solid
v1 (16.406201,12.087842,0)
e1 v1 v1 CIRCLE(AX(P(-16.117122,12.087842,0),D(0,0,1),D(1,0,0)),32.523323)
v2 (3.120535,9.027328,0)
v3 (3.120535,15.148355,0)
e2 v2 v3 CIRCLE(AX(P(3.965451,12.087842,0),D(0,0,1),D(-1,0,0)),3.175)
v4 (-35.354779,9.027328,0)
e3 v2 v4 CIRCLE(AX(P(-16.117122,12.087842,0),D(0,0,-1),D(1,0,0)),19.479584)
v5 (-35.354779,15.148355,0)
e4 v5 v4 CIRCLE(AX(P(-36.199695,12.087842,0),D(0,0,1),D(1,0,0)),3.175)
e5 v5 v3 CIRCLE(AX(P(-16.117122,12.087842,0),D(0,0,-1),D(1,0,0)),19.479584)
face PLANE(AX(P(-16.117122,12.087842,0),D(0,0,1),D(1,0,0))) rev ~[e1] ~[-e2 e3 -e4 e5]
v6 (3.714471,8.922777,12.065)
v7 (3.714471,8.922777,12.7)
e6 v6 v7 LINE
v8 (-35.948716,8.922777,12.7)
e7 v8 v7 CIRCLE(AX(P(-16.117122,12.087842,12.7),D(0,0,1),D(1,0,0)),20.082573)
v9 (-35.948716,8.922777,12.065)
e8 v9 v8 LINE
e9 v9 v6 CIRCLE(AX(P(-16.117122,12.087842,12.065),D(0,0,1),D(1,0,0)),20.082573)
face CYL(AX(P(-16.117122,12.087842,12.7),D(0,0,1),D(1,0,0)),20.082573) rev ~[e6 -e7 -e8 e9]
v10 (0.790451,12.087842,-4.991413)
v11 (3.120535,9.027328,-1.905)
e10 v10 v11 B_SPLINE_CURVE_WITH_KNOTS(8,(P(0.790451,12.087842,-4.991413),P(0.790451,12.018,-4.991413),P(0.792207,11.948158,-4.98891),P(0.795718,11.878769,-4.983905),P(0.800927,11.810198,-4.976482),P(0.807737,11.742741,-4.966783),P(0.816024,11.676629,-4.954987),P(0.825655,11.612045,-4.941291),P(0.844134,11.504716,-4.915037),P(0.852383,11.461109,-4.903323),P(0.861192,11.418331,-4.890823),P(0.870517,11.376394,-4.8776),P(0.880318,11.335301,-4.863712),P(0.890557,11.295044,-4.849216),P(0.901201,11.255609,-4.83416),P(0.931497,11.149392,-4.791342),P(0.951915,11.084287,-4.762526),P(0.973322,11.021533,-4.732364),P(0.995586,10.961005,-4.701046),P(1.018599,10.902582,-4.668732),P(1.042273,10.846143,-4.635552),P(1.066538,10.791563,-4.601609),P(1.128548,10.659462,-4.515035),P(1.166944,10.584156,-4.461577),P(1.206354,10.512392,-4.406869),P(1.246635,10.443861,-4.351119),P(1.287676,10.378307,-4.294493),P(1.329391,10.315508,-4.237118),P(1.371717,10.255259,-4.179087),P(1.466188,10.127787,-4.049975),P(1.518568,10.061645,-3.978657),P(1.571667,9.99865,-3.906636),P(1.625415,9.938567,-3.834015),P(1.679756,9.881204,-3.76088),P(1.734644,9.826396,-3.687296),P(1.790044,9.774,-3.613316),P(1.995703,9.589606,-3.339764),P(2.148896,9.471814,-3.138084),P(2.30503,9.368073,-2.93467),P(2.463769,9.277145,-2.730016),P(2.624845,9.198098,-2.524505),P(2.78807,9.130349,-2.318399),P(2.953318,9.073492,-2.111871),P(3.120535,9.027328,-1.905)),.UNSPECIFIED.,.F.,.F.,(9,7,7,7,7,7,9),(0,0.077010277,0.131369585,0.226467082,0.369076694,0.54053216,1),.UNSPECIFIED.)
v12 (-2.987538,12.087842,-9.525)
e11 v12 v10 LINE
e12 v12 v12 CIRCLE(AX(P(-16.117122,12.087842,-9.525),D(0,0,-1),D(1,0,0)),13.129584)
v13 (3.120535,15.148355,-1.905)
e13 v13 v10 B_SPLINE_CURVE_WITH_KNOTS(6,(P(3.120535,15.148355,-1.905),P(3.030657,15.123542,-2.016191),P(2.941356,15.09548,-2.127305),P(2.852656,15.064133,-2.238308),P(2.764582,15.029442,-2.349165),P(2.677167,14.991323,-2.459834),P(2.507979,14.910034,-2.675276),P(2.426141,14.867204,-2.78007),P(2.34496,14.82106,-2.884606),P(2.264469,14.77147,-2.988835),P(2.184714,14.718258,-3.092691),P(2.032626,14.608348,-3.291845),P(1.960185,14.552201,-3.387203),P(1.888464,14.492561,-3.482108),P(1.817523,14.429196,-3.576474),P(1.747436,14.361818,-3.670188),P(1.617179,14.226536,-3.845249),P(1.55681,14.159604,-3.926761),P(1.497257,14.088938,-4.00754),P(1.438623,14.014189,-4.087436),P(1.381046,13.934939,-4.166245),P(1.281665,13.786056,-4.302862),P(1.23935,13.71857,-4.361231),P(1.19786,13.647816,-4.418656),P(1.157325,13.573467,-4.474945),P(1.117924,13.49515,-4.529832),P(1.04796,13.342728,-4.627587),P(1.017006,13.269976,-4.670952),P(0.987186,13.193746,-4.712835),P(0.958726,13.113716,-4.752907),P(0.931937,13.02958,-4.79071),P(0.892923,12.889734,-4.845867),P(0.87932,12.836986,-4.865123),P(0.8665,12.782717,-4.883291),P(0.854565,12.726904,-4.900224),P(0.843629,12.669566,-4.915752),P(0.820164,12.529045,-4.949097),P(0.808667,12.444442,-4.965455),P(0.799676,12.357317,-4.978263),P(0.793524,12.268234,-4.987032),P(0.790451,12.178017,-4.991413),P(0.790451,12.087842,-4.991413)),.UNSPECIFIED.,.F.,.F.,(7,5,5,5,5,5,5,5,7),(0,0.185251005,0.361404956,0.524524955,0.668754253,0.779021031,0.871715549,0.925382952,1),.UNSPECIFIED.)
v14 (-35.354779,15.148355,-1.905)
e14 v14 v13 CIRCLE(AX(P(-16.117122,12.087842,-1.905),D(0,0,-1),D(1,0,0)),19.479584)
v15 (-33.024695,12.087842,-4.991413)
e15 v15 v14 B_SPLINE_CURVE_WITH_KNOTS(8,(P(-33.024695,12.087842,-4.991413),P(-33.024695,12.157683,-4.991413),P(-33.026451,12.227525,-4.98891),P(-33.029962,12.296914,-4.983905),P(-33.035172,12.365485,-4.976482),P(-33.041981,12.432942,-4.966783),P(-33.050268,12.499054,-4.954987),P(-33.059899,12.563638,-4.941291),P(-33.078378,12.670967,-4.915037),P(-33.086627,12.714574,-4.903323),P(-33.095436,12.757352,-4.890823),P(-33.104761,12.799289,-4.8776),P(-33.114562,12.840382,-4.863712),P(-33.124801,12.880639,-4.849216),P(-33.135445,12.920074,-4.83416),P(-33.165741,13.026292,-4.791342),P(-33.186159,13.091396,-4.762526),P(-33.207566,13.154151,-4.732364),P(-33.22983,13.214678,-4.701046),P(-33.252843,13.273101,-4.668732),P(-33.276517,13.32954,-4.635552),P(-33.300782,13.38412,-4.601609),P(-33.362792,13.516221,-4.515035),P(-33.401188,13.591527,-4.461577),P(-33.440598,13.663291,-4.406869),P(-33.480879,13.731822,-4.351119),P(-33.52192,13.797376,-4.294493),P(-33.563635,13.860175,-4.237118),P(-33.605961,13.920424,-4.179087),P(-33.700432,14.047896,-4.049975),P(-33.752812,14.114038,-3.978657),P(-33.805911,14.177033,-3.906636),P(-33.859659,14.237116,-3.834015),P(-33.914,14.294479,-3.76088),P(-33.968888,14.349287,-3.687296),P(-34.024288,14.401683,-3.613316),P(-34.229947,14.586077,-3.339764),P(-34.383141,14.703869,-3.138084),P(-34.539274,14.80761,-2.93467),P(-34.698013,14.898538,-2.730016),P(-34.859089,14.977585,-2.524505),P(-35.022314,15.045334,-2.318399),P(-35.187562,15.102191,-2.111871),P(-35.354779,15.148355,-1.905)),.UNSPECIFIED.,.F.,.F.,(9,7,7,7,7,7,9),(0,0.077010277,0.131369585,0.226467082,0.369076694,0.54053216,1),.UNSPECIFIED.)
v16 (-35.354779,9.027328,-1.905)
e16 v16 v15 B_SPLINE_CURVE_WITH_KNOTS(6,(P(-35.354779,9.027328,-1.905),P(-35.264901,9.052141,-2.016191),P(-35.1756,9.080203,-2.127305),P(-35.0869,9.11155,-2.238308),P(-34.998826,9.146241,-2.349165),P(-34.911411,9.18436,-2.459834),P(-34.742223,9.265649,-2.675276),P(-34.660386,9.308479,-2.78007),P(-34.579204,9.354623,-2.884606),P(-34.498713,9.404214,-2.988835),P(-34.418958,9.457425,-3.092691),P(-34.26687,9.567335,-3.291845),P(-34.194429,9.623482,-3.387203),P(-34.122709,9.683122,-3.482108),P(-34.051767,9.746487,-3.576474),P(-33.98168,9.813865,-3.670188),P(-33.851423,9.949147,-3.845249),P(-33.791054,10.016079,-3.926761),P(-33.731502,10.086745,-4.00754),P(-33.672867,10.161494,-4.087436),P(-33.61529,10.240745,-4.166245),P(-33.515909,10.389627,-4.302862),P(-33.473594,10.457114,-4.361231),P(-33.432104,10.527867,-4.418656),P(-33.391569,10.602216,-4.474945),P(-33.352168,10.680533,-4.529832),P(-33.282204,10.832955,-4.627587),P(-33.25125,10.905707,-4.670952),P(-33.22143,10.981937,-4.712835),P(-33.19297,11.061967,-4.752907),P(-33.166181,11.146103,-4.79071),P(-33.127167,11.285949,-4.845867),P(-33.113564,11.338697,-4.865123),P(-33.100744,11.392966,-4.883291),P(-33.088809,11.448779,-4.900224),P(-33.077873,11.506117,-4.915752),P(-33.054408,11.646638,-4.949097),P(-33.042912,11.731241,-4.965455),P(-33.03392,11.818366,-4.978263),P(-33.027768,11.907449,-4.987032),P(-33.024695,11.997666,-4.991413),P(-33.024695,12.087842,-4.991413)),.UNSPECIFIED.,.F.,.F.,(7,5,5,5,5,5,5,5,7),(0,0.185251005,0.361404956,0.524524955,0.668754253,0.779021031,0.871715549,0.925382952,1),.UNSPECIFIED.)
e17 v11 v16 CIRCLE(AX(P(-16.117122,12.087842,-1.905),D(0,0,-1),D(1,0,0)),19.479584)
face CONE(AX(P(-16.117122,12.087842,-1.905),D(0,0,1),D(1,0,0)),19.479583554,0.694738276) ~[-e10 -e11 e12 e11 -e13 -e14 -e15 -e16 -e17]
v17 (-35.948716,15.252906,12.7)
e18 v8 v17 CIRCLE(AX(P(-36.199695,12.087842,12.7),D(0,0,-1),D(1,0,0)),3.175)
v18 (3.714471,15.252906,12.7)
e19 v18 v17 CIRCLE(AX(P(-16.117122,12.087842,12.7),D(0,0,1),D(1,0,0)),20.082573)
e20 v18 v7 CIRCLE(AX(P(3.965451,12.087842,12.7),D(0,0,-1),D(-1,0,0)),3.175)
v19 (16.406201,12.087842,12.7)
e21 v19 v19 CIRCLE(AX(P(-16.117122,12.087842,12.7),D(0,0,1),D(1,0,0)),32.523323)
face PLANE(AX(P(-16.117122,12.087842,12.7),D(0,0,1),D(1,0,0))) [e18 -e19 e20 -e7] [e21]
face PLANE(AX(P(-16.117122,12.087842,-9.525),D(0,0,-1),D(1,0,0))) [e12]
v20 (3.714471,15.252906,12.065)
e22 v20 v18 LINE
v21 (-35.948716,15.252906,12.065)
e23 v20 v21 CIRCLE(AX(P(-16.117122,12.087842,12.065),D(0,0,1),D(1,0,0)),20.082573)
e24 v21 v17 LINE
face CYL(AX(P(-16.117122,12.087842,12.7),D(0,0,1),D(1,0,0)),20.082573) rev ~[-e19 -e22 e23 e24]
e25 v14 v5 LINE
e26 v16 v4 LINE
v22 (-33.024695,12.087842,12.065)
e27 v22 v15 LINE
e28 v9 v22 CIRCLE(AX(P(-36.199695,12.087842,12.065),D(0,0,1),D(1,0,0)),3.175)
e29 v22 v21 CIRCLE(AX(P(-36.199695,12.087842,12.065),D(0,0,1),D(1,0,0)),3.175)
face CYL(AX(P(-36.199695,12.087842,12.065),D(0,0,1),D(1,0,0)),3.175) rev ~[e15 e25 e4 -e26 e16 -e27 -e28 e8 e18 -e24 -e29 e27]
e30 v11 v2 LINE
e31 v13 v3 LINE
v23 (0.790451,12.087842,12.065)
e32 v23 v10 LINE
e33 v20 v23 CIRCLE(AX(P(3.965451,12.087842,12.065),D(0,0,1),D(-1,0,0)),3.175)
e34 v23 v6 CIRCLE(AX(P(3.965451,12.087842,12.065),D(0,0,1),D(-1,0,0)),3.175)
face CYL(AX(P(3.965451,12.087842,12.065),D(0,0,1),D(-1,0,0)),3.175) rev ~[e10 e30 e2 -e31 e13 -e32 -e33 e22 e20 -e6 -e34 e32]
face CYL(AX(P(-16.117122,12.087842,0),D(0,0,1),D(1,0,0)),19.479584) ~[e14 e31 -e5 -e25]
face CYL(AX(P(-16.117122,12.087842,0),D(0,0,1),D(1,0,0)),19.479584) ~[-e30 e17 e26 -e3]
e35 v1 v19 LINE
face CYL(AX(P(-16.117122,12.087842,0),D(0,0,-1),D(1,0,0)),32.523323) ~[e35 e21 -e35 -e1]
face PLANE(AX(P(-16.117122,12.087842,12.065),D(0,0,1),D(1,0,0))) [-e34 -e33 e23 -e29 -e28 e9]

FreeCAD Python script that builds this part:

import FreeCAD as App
import Part
import Sketcher

V = App.Vector
Q = App.Units.Quantity


def edges_at(feature, points):
    """Names of the edges that pass closest to the given points."""
    edges = feature.Shape.Edges
    near = lambda p: min(range(len(edges)), key=lambda i: edges[i].distToShape(Part.Vertex(*p))[0])
    return sorted({f"Edge{near(p) + 1}" for p in points})

doc = App.newDocument("Part")
body = doc.addObject("PartDesign::Body", "Body")

# Sketch on XY plane
sketch1 = body.newObject("Sketcher::SketchObject", "Sketch")
sketch1.AttachmentSupport = (doc.getObject("XY_Plane"), [""])
sketch1.MapMode = "FlatFace"
sketch1.addGeometry(Part.Circle(V(-16, 12, 0), V(0, 0, 1), 33), False)
sketch1.addConstraint([
    Sketcher.Constraint("Diameter", 0, Q("65.046647 mm")),
    Sketcher.Constraint("DistanceY", -1, 1, 0, 3, Q("12.087842 mm")),
    Sketcher.Constraint("DistanceX", 0, 3, -1, 1, Q("16.117122 mm")),
])
pad1 = body.newObject("PartDesign::Pad", "Pad")
pad1.Profile = sketch1
pad1.Length = Q("0.5 in")

# Sketch on XY plane
sketch2 = body.newObject("Sketcher::SketchObject", "Sketch001")
sketch2.AttachmentSupport = (doc.getObject("XY_Plane"), [""])
sketch2.MapMode = "FlatFace"
sketch2.addGeometry(Part.Circle(V(-16, 12, 0), V(0, 0, 1), 19), False)
sketch2.addConstraint([
    Sketcher.Constraint("Diameter", 0, Q("38.959167 mm")),
    Sketcher.Constraint("DistanceY", -1, 1, 0, 3, Q("12.087842 mm")),
    Sketcher.Constraint("DistanceX", 0, 3, -1, 1, Q("16.117122 mm")),
])
pad2 = body.newObject("PartDesign::Pad", "Pad001")
pad2.Profile = sketch2
pad2.Length = Q("0.375 in")
pad2.Reversed = True
doc.recompute()

chamfer = body.newObject("PartDesign::Chamfer", "Chamfer")
chamfer.Base = (pad2, edges_at(pad2, [(-35.597, 12.088, -9.525)]))
chamfer.ChamferType = "Two distances"
chamfer.Size = Q("0.25 in")
chamfer.Size2 = Q("0.3 in")
chamfer.FlipDirection = True

# Sketch on XY plane
sketch3 = body.newObject("Sketcher::SketchObject", "Sketch002")
sketch3.AttachmentSupport = (doc.getObject("XY_Plane"), [""])
sketch3.MapMode = "FlatFace"
sketch3.AttachmentOffset = App.Placement(V(0, 0, 0.5 * 25.4), App.Rotation())
sketch3.addGeometry(Part.Circle(V(-16, 12, 0), V(0, 0, 1), 20), False)
sketch3.addConstraint([
    Sketcher.Constraint("Diameter", 0, Q("40.165146 mm")),
    Sketcher.Constraint("DistanceY", -1, 1, 0, 3, Q("12.087842 mm")),
    Sketcher.Constraint("DistanceX", 0, 3, -1, 1, Q("16.117122 mm")),
])
pocket1 = body.newObject("PartDesign::Pocket", "Pocket")
pocket1.Profile = sketch3
pocket1.Length = Q("0.025 in")

# Sketch on XY plane
sketch4 = body.newObject("Sketcher::SketchObject", "Sketch003")
sketch4.AttachmentSupport = (doc.getObject("XY_Plane"), [""])
sketch4.MapMode = "FlatFace"
sketch4.AttachmentOffset = App.Placement(V(0, 0, 0.475 * 25.4), App.Rotation())
sketch4.addGeometry([
    Part.Circle(V(-36.2, 12.1, 0), V(0, 0, 1), 3.2),
    Part.Circle(V(4, 12.1, 0), V(0, 0, 1), 3.2),
], False)
sketch4.addConstraint([
    Sketcher.Constraint("Equal", 0, 1),
    Sketcher.Constraint("Horizontal", 0, 3, 1, 3),
    Sketcher.Constraint("Diameter", 0, Q("0.25 in")),
    Sketcher.Constraint("DistanceY", -1, 1, 0, 3, Q("12.087842 mm")),
    Sketcher.Constraint("DistanceX", -1, 1, 1, 3, Q("3.965451 mm")),
    Sketcher.Constraint("DistanceX", 0, 3, -1, 1, Q("36.199695 mm")),
])
pocket2 = body.newObject("PartDesign::Pocket", "Pocket001")
pocket2.Profile = sketch4
pocket2.Type = "ThroughAll"

# Sketch on XY plane
sketch5 = body.newObject("Sketcher::SketchObject", "Sketch004")
sketch5.AttachmentSupport = (doc.getObject("XY_Plane"), [""])
sketch5.MapMode = "FlatFace"
sketch5.AttachmentOffset = App.Placement(V(0, 0, 0.475 * 25.4), App.Rotation())
sketch5.addGeometry([
    Part.Circle(V(-36.2, 12.1, 0), V(0, 0, 1), 3.2),
    Part.Circle(V(4, 12.1, 0), V(0, 0, 1), 3.2),
], False)
sketch5.addConstraint([
    Sketcher.Constraint("Equal", 0, 1),
    Sketcher.Constraint("Horizontal", 0, 3, 1, 3),
    Sketcher.Constraint("Diameter", 0, Q("0.25 in")),
    Sketcher.Constraint("DistanceY", -1, 1, 0, 3, Q("12.087842 mm")),
    Sketcher.Constraint("DistanceX", -1, 1, 1, 3, Q("3.965451 mm")),
    Sketcher.Constraint("DistanceX", 0, 3, -1, 1, Q("36.199695 mm")),
])
pocket3 = body.newObject("PartDesign::Pocket", "Pocket002")
pocket3.Profile = sketch5
pocket3.Length = Q("0.76 in")
pocket3.Reversed = True

doc.recompute()
